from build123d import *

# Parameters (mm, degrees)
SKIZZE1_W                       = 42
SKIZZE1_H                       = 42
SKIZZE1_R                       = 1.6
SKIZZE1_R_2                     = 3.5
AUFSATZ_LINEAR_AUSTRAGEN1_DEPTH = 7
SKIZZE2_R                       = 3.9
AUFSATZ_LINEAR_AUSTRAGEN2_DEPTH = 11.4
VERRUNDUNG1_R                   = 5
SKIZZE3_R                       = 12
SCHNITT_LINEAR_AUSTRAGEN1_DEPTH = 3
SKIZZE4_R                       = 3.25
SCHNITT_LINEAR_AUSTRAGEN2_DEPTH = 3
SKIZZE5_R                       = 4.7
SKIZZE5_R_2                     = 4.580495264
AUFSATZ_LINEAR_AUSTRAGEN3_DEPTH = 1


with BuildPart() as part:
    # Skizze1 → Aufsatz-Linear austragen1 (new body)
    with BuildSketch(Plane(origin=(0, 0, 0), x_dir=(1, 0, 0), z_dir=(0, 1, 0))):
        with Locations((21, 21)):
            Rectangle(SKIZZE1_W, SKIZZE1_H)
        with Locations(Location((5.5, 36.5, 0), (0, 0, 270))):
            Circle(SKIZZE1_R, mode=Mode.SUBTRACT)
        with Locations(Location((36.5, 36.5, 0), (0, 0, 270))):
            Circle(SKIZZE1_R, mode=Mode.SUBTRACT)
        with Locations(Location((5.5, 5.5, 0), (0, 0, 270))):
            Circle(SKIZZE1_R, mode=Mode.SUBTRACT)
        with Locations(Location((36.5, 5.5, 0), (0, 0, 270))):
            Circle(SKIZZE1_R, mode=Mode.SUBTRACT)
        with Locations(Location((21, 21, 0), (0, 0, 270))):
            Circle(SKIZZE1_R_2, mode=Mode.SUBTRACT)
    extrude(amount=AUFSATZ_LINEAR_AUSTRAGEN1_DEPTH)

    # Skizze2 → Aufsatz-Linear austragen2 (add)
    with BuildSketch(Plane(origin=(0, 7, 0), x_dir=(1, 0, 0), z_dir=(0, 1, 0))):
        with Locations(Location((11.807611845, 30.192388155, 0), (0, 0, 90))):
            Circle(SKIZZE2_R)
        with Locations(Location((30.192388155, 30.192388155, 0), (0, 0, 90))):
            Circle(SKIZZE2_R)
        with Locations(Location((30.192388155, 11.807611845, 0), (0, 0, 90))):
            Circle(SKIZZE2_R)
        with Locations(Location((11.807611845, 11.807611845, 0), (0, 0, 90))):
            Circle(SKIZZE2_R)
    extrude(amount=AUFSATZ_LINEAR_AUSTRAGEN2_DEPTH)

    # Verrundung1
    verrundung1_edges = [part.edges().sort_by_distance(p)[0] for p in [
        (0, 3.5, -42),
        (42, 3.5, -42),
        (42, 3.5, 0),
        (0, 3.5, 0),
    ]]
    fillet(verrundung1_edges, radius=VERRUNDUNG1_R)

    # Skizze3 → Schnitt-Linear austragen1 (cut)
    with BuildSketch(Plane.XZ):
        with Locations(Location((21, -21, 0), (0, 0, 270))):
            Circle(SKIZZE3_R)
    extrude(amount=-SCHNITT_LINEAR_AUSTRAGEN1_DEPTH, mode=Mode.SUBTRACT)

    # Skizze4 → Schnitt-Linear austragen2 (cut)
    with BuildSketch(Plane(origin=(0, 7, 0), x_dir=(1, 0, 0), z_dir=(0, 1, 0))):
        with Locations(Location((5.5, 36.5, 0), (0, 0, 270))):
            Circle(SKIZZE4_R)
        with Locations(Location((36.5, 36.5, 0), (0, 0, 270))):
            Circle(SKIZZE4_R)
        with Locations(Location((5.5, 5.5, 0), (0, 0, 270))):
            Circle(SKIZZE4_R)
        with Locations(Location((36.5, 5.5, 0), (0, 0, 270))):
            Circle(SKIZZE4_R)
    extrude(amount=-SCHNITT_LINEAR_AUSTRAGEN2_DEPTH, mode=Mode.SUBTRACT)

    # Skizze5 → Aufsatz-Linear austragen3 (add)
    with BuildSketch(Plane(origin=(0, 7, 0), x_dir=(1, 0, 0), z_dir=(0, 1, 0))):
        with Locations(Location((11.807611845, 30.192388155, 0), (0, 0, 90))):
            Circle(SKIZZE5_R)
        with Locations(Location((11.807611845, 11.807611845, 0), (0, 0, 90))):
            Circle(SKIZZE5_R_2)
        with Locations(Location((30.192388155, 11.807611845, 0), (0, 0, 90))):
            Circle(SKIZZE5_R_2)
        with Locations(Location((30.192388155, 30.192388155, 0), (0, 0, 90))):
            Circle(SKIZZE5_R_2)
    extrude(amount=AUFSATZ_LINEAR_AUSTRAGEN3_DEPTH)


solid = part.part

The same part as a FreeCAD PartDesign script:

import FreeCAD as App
import Part
import Sketcher


def edges_at(feature, points):
    """Names of the edges that pass closest to the given points."""
    edges = feature.Shape.Edges
    near = lambda p: min(range(len(edges)), key=lambda i: edges[i].distToShape(Part.Vertex(*p))[0])
    return sorted({f"Edge{near(p) + 1}" for p in points})


def add_polygon(sketch, points):
    """Adds a closed chain of lines whose ends are joined by coincident constraints."""
    first, n = sketch.GeometryCount, len(points)
    for a, b in zip(points, points[1:] + points[:1]):
        sketch.addGeometry(Part.LineSegment(App.Vector(*a, 0), App.Vector(*b, 0)), False)
    for i in range(n):
        sketch.addConstraint(Sketcher.Constraint("Coincident", first + i, 2, first + (i + 1) % n, 1))

doc = App.newDocument("Part")
params = doc.addObject("Spreadsheet::Sheet", "Params")
for row, (alias, value) in enumerate([
    ("sketch1_diameter", "7 mm"),
    ("sketch1_diameter2", "3.2 mm"),
    ("sketch1_width", "42 mm"),
    ("pad1_length", "7 mm"),
    ("sketch2_diameter", "7.8 mm"),
    ("pad2_length", "11.4 mm"),
    ("fillet_radius", "5 mm"),
    ("sketch3_diameter", "24 mm"),
    ("pocket1_length", "3 mm"),
    ("sketch4_diameter", "6.5 mm"),
    ("pocket2_length", "3 mm"),
    ("sketch5_diameter", "9.4 mm"),
    ("pad3_length", "1 mm"),
], start=1):
    params.set(f"A{row}", alias)
    params.set(f"B{row}", "=" + value)
    params.setAlias(f"B{row}", alias)

body = doc.addObject("PartDesign::Body", "Body")

# Sketch on XZ plane
sketch1 = body.newObject("Sketcher::SketchObject", "Sketch")
sketch1.AttachmentSupport = (doc.getObject("XZ_Plane"), [""])
sketch1.MapMode = "FlatFace"
add_polygon(sketch1, [(0, -42), (0, 0), (42, 0), (42, -42)])  # lines 0-3
sketch1.addGeometry(Part.Circle(App.Vector(5.5, -5.5, 0), App.Vector(0, 0, 1), 1.6), False)  # 4
sketch1.addGeometry(Part.Circle(App.Vector(36.5, -5.5, 0), App.Vector(0, 0, 1), 1.6), False)  # 5
sketch1.addGeometry(Part.Circle(App.Vector(5.5, -36.5, 0), App.Vector(0, 0, 1), 1.6), False)  # 6
sketch1.addGeometry(Part.Circle(App.Vector(21, -21, 0), App.Vector(0, 0, 1), 3.5), False)  # 7
sketch1.addGeometry(Part.Circle(App.Vector(36.5, -36.5, 0), App.Vector(0, 0, 1), 1.6), False)  # 8
sketch1.addConstraint(Sketcher.Constraint("Vertical", 0))
sketch1.addConstraint(Sketcher.Constraint("Horizontal", 1))
sketch1.addConstraint(Sketcher.Constraint("Vertical", 2))
sketch1.addConstraint(Sketcher.Constraint("Horizontal", 3))
sketch1.addConstraint(Sketcher.Constraint("Coincident", 0, 2, -1, 1))
sketch1.addConstraint(Sketcher.Constraint("Equal", 4, 5))
sketch1.addConstraint(Sketcher.Constraint("Equal", 5, 6))
sketch1.addConstraint(Sketcher.Constraint("Equal", 6, 8))
sketch1.addConstraint(Sketcher.Constraint("Horizontal", 4, 3, 5, 3))
sketch1.addConstraint(Sketcher.Constraint("Horizontal", 6, 3, 8, 3))
sketch1.addConstraint(Sketcher.Constraint("Vertical", 4, 3, 6, 3))
sketch1.addConstraint(Sketcher.Constraint("Vertical", 5, 3, 8, 3))
sketch1.addConstraint(Sketcher.Constraint("Equal", 3, 0))
sketch1.addConstraint(Sketcher.Constraint("Diameter", 7, 7.0))
sketch1.addConstraint(Sketcher.Constraint("Diameter", 4, 3.2))
sketch1.addConstraint(Sketcher.Constraint("DistanceX", 1, 1, 1, 2, 42.0))
sketch1.addConstraint(Sketcher.Constraint("DistanceX", -1, 1, 7, 3, 21.0))
sketch1.addConstraint(Sketcher.Constraint("DistanceY", 7, 3, -1, 1, 21.0))
sketch1.addConstraint(Sketcher.Constraint("DistanceX", 4, 3, 5, 3, 31.0))
sketch1.addConstraint(Sketcher.Constraint("DistanceY", 6, 3, 4, 3, 31.0))
sketch1.addConstraint(Sketcher.Constraint("DistanceX", -1, 1, 4, 3, 5.5))
sketch1.addConstraint(Sketcher.Constraint("DistanceY", 4, 3, -1, 1, 5.5))
sketch1.setExpression("Constraints[17]", "Params.sketch1_diameter")
sketch1.setExpression("Constraints[18]", "Params.sketch1_diameter2")
sketch1.setExpression("Constraints[19]", "Params.sketch1_width")
pad1 = body.newObject("PartDesign::Pad", "Pad")
pad1.Profile = sketch1
pad1.setExpression("Length", "Params.pad1_length")
pad1.Reversed = True

# Sketch on XZ plane
sketch2 = body.newObject("Sketcher::SketchObject", "Sketch001")
sketch2.AttachmentSupport = (doc.getObject("XZ_Plane"), [""])
sketch2.MapMode = "FlatFace"
sketch2.AttachmentOffset = App.Placement(App.Vector(0, 0, -7), App.Rotation())
sketch2.addGeometry(Part.Circle(App.Vector(11.8, -30.2, 0), App.Vector(0, 0, 1), 3.9), False)
sketch2.addGeometry(Part.Circle(App.Vector(30.2, -30.2, 0), App.Vector(0, 0, 1), 3.9), False)
sketch2.addGeometry(Part.Circle(App.Vector(30.2, -11.8, 0), App.Vector(0, 0, 1), 3.9), False)
sketch2.addGeometry(Part.Circle(App.Vector(11.8, -11.8, 0), App.Vector(0, 0, 1), 3.9), False)
sketch2.addConstraint(Sketcher.Constraint("Equal", 0, 1))
sketch2.addConstraint(Sketcher.Constraint("Equal", 1, 2))
sketch2.addConstraint(Sketcher.Constraint("Equal", 2, 3))
sketch2.addConstraint(Sketcher.Constraint("Horizontal", 0, 3, 1, 3))
sketch2.addConstraint(Sketcher.Constraint("Horizontal", 2, 3, 3, 3))
sketch2.addConstraint(Sketcher.Constraint("Vertical", 1, 3, 2, 3))
sketch2.addConstraint(Sketcher.Constraint("Vertical", 0, 3, 3, 3))
sketch2.addConstraint(Sketcher.Constraint("Diameter", 0, 7.8))
sketch2.addConstraint(Sketcher.Constraint("DistanceX", -1, 1, 0, 3, 11.807612))
sketch2.addConstraint(Sketcher.Constraint("DistanceY", 0, 3, -1, 1, 30.192388))
sketch2.addConstraint(Sketcher.Constraint("DistanceX", -1, 1, 1, 3, 30.192388))
sketch2.addConstraint(Sketcher.Constraint("DistanceY", 2, 3, -1, 1, 11.807612))
sketch2.setExpression("Constraints[7]", "Params.sketch2_diameter")
pad2 = body.newObject("PartDesign::Pad", "Pad001")
pad2.Profile = sketch2
pad2.setExpression("Length", "Params.pad2_length")
pad2.Reversed = True
doc.recompute()

fillet = body.newObject("PartDesign::Fillet", "Fillet")
fillet.Base = (pad2, edges_at(pad2, [
    (0, 3.5, -42),
    (42, 3.5, -42),
    (42, 3.5, 0),
    (0, 3.5, 0),
]))
fillet.setExpression("Radius", "Params.fillet_radius")

# Sketch on XZ plane
sketch3 = body.newObject("Sketcher::SketchObject", "Sketch002")
sketch3.AttachmentSupport = (doc.getObject("XZ_Plane"), [""])
sketch3.MapMode = "FlatFace"
sketch3.addGeometry(Part.Circle(App.Vector(21, -21, 0), App.Vector(0, 0, 1), 12), False)
sketch3.addConstraint(Sketcher.Constraint("Diameter", 0, 24.0))
sketch3.addConstraint(Sketcher.Constraint("DistanceX", -1, 1, 0, 3, 21.0))
sketch3.addConstraint(Sketcher.Constraint("DistanceY", 0, 3, -1, 1, 21.0))
sketch3.setExpression("Constraints[0]", "Params.sketch3_diameter")
pocket1 = body.newObject("PartDesign::Pocket", "Pocket")
pocket1.Profile = sketch3
pocket1.setExpression("Length", "Params.pocket1_length")

# Sketch on XZ plane
sketch4 = body.newObject("Sketcher::SketchObject", "Sketch003")
sketch4.AttachmentSupport = (doc.getObject("XZ_Plane"), [""])
sketch4.MapMode = "FlatFace"
sketch4.AttachmentOffset = App.Placement(App.Vector(0, 0, -7), App.Rotation())
sketch4.addGeometry(Part.Circle(App.Vector(5.5, -36.5, 0), App.Vector(0, 0, 1), 3.2), False)
sketch4.addGeometry(Part.Circle(App.Vector(36.5, -36.5, 0), App.Vector(0, 0, 1), 3.2), False)
sketch4.addGeometry(Part.Circle(App.Vector(5.5, -5.5, 0), App.Vector(0, 0, 1), 3.2), False)
sketch4.addGeometry(Part.Circle(App.Vector(36.5, -5.5, 0), App.Vector(0, 0, 1), 3.2), False)
sketch4.addConstraint(Sketcher.Constraint("Equal", 0, 1))
sketch4.addConstraint(Sketcher.Constraint("Equal", 1, 2))
sketch4.addConstraint(Sketcher.Constraint("Equal", 2, 3))
sketch4.addConstraint(Sketcher.Constraint("Horizontal", 0, 3, 1, 3))
sketch4.addConstraint(Sketcher.Constraint("Horizontal", 2, 3, 3, 3))
sketch4.addConstraint(Sketcher.Constraint("Vertical", 0, 3, 2, 3))
sketch4.addConstraint(Sketcher.Constraint("Vertical", 1, 3, 3, 3))
sketch4.addConstraint(Sketcher.Constraint("Diameter", 0, 6.5))
sketch4.addConstraint(Sketcher.Constraint("DistanceX", 0, 3, 1, 3, 31.0))
sketch4.addConstraint(Sketcher.Constraint("DistanceY", 0, 3, 2, 3, 31.0))
sketch4.addConstraint(Sketcher.Constraint("DistanceX", -1, 1, 0, 3, 5.5))
sketch4.addConstraint(Sketcher.Constraint("DistanceY", 0, 3, -1, 1, 36.5))
sketch4.setExpression("Constraints[7]", "Params.sketch4_diameter")
pocket2 = body.newObject("PartDesign::Pocket", "Pocket001")
pocket2.Profile = sketch4
pocket2.setExpression("Length", "Params.pocket2_length")
pocket2.Reversed = True

# Sketch on XZ plane
sketch5 = body.newObject("Sketcher::SketchObject", "Sketch004")
sketch5.AttachmentSupport = (doc.getObject("XZ_Plane"), [""])
sketch5.MapMode = "FlatFace"
sketch5.AttachmentOffset = App.Placement(App.Vector(0, 0, -7), App.Rotation())
sketch5.addGeometry(Part.Circle(App.Vector(11.8, -30.2, 0), App.Vector(0, 0, 1), 4.7), False)
sketch5.addGeometry(Part.Circle(App.Vector(11.8, -11.8, 0), App.Vector(0, 0, 1), 4.6), False)
sketch5.addGeometry(Part.Circle(App.Vector(30.2, -11.8, 0), App.Vector(0, 0, 1), 4.6), False)
sketch5.addGeometry(Part.Circle(App.Vector(30.2, -30.2, 0), App.Vector(0, 0, 1), 4.6), False)
sketch5.addConstraint(Sketcher.Constraint("Equal", 1, 2))
sketch5.addConstraint(Sketcher.Constraint("Equal", 2, 3))
sketch5.addConstraint(Sketcher.Constraint("Horizontal", 1, 3, 2, 3))
sketch5.addConstraint(Sketcher.Constraint("Horizontal", 0, 3, 3, 3))
sketch5.addConstraint(Sketcher.Constraint("Vertical", 0, 3, 1, 3))
sketch5.addConstraint(Sketcher.Constraint("Vertical", 2, 3, 3, 3))
sketch5.addConstraint(Sketcher.Constraint("Diameter", 0, 9.4))
sketch5.addConstraint(Sketcher.Constraint("Diameter", 1, 9.160991))
sketch5.addConstraint(Sketcher.Constraint("DistanceX", -1, 1, 0, 3, 11.807612))
sketch5.addConstraint(Sketcher.Constraint("DistanceY", 0, 3, -1, 1, 30.192388))
sketch5.addConstraint(Sketcher.Constraint("DistanceY", 1, 3, -1, 1, 11.807612))
sketch5.addConstraint(Sketcher.Constraint("DistanceX", -1, 1, 2, 3, 30.192388))
sketch5.setExpression("Constraints[6]", "Params.sketch5_diameter")
pad3 = body.newObject("PartDesign::Pad", "Pad002")
pad3.Profile = sketch5
pad3.setExpression("Length", "Params.pad3_length")
pad3.Reversed = True

doc.recompute()
